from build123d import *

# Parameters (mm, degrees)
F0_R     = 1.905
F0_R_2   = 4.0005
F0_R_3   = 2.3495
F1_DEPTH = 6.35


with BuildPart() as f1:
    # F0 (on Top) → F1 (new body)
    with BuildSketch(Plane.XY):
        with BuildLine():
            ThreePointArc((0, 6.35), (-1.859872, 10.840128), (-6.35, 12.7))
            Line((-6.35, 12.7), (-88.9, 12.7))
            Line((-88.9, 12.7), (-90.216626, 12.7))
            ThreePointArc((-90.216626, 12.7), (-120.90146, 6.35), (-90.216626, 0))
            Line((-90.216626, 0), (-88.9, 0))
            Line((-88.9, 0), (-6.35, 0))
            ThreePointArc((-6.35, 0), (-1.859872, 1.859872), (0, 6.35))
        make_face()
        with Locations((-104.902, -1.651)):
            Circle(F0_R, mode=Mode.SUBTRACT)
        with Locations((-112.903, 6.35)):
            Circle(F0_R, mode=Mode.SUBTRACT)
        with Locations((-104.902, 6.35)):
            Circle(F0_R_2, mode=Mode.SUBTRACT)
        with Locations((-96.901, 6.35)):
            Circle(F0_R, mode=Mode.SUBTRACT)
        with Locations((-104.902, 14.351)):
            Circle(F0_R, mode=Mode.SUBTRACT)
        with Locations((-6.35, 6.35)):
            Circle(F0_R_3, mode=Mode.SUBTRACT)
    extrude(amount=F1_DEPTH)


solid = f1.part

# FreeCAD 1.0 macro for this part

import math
import FreeCAD as App
import Part
import Sketcher
from FreeCAD import Vector
Q = App.Units.Quantity

doc = App.newDocument("Part")
body = doc.addObject("PartDesign::Body", "Body")

# Sketch on XY plane
sketch1 = doc.addObject("Sketcher::SketchObject", "Sketch")
body.addObject(sketch1)
sketch1.AttachmentSupport = (doc.XY_Plane, [""])
sketch1.MapMode = "FlatFace"
sketch1.addGeometry([
    Part.ArcOfCircle(Part.Circle(Vector(-6.35, 6.35, 0), Vector(0, 0, 1), 6.35), math.radians(0.000002), math.radians(89.999998)),  # 0
    Part.LineSegment(Vector(-6.35, 12.7, 0), Vector(-90.216626, 12.7, 0)),  # 1
    Part.ArcOfCircle(Part.Circle(Vector(-104.902, 6.35, 0), Vector(0, 0, 1), 15.99946), math.radians(23.383801), math.radians(336.616199)),  # 2
    Part.LineSegment(Vector(-90.216626, 0, 0), Vector(-6.35, 0, 0)),  # 3
    Part.ArcOfCircle(Part.Circle(Vector(-6.35, 6.35, 0), Vector(0, 0, 1), 6.35), math.radians(-89.999998), math.radians(-0.000002)),  # 4
    Part.Circle(Vector(-104.902, -1.651, 0), Vector(0, 0, 1), 1.905),  # 5
    Part.Circle(Vector(-112.903, 6.35, 0), Vector(0, 0, 1), 1.905),  # 6
    Part.Circle(Vector(-104.902, 6.35, 0), Vector(0, 0, 1), 4.0005),  # 7
    Part.Circle(Vector(-96.901, 6.35, 0), Vector(0, 0, 1), 1.905),  # 8
    Part.Circle(Vector(-6.35, 6.35, 0), Vector(0, 0, 1), 2.3495),  # 9
    Part.Circle(Vector(-104.902, 14.351, 0), Vector(0, 0, 1), 1.905),  # 10
], False)
sketch1.addConstraint([
    Sketcher.Constraint("Tangent", 0, 2, 1, 1),
    Sketcher.Constraint("Coincident", 1, 2, 2, 1),
    Sketcher.Constraint("Coincident", 2, 2, 3, 1),
    Sketcher.Constraint("Tangent", 3, 2, 4, 1),
    Sketcher.Constraint("Tangent", 4, 2, 0, 1),
    Sketcher.Constraint("Horizontal", 1),
    Sketcher.Constraint("Horizontal", 3),
    Sketcher.Constraint("Coincident", 7, 3, 2, 3),
    Sketcher.Constraint("Coincident", 9, 3, 0, 3),
    Sketcher.Constraint("Equal", 0, 4),
    Sketcher.Constraint("Equal", 5, 6),
    Sketcher.Constraint("Equal", 6, 8),
    Sketcher.Constraint("Equal", 8, 10),
    Sketcher.Constraint("PointOnObject", 2, 2, -1),
    Sketcher.Constraint("PointOnObject", 4, 2, -2),
    Sketcher.Constraint("Horizontal", 0, 3, 2, 3),
    Sketcher.Constraint("Horizontal", 4, 3, 6, 3),
    Sketcher.Constraint("Horizontal", 7, 3, 8, 3),
    Sketcher.Constraint("Horizontal", 9, 3, 4, 2),
    Sketcher.Constraint("Vertical", 2, 3, 5, 3),
    Sketcher.Constraint("Vertical", 7, 3, 10, 3),
    Sketcher.Constraint("Diameter", 5, Q("0.15 in")),
    Sketcher.Constraint("Radius", 0, Q("0.25 in")),
    Sketcher.Constraint("Diameter", 7, Q("0.315 in")),
    Sketcher.Constraint("Diameter", 9, Q("0.185 in")),
    Sketcher.Constraint("Radius", 2, Q("0.6299 in")),
    Sketcher.Constraint("DistanceX", 2, 3, -1, 1, Q("4.13 in")),
    Sketcher.Constraint("DistanceX", 6, 3, 8, 3, Q("0.63 in")),
    Sketcher.Constraint("DistanceY", 5, 3, 10, 3, Q("0.63 in")),
    Sketcher.Constraint("DistanceY", 5, 3, -1, 1, Q("0.065 in")),
    Sketcher.Constraint("DistanceX", 6, 3, -1, 1, Q("4.445 in")),
])
pad1 = doc.addObject("PartDesign::Pad", "Pad")
body.addObject(pad1)
pad1.Profile = sketch1
pad1.Length = Q("0.25 in")

doc.recompute()
